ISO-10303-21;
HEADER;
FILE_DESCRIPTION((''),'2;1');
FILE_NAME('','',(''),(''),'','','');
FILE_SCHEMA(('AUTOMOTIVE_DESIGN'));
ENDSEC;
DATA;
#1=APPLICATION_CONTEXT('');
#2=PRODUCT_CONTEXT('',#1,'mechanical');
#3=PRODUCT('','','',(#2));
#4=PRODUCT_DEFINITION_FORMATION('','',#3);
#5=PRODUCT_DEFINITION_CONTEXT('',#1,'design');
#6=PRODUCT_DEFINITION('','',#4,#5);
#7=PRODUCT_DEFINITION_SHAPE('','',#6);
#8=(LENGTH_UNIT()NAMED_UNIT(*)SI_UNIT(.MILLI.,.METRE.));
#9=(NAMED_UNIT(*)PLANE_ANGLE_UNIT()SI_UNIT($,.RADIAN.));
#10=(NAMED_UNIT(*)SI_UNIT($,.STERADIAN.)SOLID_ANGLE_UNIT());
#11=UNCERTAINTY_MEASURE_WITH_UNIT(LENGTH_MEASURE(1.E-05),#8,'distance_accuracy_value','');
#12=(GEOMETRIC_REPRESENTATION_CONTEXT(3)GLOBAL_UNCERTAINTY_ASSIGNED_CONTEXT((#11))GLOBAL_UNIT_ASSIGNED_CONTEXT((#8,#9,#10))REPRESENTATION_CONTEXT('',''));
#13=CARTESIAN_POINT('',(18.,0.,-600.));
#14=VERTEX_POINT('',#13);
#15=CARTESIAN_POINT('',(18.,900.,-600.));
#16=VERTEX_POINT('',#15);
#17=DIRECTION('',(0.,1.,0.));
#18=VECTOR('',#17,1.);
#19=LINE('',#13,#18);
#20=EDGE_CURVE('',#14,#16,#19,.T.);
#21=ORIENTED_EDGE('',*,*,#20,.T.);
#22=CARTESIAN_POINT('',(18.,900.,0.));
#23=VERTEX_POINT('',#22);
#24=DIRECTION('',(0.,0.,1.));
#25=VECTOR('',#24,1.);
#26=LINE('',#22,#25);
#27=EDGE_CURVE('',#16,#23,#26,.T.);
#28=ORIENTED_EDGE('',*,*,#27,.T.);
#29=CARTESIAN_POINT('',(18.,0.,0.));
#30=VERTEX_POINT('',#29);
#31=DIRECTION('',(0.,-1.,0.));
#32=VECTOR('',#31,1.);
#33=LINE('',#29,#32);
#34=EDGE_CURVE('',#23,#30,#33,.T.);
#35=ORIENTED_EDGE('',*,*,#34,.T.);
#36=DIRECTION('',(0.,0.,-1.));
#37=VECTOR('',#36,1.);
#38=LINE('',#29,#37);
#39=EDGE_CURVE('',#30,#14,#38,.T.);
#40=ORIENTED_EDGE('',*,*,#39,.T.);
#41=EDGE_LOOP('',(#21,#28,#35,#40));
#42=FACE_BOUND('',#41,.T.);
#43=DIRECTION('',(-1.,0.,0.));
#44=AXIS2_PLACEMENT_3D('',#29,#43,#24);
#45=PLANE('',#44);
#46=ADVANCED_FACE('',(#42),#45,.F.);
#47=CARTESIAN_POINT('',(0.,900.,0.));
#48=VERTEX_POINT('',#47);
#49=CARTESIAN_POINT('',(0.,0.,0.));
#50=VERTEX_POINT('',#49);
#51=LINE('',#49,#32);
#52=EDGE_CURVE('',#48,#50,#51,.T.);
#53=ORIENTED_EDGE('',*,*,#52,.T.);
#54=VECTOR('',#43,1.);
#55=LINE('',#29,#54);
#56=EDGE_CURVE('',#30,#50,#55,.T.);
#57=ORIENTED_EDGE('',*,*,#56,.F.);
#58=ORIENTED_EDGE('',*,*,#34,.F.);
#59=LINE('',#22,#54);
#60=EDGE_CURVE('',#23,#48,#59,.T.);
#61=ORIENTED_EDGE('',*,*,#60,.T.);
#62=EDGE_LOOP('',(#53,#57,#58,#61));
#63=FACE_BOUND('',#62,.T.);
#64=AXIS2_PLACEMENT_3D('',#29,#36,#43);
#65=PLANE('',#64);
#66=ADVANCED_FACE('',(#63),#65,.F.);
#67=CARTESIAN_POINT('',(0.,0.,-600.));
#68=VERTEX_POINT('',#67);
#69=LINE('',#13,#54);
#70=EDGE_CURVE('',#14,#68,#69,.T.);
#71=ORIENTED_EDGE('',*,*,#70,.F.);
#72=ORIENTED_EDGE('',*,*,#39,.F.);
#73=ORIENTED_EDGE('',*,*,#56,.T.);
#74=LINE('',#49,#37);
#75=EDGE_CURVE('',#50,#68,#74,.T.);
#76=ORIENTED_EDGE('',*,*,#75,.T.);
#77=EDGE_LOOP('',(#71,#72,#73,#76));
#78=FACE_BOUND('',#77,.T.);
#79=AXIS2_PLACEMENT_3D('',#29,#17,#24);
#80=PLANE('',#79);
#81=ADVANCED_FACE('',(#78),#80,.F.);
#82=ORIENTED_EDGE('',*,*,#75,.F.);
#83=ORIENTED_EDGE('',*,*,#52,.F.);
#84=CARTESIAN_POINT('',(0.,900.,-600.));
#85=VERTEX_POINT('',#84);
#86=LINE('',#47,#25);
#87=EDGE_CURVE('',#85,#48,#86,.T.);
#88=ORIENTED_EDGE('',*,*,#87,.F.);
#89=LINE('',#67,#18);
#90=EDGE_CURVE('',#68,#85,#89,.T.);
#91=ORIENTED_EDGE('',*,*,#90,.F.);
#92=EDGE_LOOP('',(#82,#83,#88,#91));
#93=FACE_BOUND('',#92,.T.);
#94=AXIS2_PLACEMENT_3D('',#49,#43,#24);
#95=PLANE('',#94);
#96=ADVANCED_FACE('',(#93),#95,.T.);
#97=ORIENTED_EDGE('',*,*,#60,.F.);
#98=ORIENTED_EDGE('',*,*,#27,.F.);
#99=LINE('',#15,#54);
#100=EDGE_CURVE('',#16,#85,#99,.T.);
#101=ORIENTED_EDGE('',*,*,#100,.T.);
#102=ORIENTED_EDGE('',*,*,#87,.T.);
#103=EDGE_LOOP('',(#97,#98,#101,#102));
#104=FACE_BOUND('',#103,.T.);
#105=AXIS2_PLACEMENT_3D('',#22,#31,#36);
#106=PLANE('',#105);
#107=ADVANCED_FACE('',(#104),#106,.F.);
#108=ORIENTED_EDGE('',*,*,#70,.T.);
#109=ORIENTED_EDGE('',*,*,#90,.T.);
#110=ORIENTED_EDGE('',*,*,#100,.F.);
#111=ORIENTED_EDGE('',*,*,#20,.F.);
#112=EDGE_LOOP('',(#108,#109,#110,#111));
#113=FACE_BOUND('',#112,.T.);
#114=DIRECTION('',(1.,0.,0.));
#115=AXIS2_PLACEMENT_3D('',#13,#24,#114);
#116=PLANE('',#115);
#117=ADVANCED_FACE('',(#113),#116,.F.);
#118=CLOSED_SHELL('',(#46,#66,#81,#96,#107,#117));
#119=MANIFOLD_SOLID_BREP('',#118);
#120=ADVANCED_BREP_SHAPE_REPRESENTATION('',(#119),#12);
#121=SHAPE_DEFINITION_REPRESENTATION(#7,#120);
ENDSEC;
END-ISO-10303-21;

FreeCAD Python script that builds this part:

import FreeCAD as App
import Part
import Sketcher
from FreeCAD import Vector

doc = App.newDocument("Part")
body = doc.addObject("PartDesign::Body", "Body")

# Sketch on YZ plane
sketch1 = body.newObject("Sketcher::SketchObject", "Sketch")
sketch1.AttachmentSupport = (doc.getObject("YZ_Plane"), [""])
sketch1.MapMode = "FlatFace"
sketch1.addGeometry([
    Part.LineSegment(Vector(900, 0, 0), Vector(0, 0, 0)),
    Part.LineSegment(Vector(0, 0, 0), Vector(0, -600, 0)),
    Part.LineSegment(Vector(0, -600, 0), Vector(900, -600, 0)),
    Part.LineSegment(Vector(900, -600, 0), Vector(900, 0, 0)),
], False)
sketch1.addConstraint([
    Sketcher.Constraint("Coincident", 0, 2, 1, 1),
    Sketcher.Constraint("Coincident", 1, 2, 2, 1),
    Sketcher.Constraint("Coincident", 2, 2, 3, 1),
    Sketcher.Constraint("Coincident", 3, 2, 0, 1),
    Sketcher.Constraint("Horizontal", 0),
    Sketcher.Constraint("Vertical", 1),
    Sketcher.Constraint("Horizontal", 2),
    Sketcher.Constraint("Vertical", 3),
    Sketcher.Constraint("Coincident", 0, 2, -1, 1),
    Sketcher.Constraint("DistanceX", 0, 2, 0, 1, 900.0),
    Sketcher.Constraint("DistanceY", 1, 2, 1, 1, 600.0),
])
pad1 = body.newObject("PartDesign::Pad", "Pad")
pad1.Profile = sketch1
pad1.Length = 18

doc.recompute()
